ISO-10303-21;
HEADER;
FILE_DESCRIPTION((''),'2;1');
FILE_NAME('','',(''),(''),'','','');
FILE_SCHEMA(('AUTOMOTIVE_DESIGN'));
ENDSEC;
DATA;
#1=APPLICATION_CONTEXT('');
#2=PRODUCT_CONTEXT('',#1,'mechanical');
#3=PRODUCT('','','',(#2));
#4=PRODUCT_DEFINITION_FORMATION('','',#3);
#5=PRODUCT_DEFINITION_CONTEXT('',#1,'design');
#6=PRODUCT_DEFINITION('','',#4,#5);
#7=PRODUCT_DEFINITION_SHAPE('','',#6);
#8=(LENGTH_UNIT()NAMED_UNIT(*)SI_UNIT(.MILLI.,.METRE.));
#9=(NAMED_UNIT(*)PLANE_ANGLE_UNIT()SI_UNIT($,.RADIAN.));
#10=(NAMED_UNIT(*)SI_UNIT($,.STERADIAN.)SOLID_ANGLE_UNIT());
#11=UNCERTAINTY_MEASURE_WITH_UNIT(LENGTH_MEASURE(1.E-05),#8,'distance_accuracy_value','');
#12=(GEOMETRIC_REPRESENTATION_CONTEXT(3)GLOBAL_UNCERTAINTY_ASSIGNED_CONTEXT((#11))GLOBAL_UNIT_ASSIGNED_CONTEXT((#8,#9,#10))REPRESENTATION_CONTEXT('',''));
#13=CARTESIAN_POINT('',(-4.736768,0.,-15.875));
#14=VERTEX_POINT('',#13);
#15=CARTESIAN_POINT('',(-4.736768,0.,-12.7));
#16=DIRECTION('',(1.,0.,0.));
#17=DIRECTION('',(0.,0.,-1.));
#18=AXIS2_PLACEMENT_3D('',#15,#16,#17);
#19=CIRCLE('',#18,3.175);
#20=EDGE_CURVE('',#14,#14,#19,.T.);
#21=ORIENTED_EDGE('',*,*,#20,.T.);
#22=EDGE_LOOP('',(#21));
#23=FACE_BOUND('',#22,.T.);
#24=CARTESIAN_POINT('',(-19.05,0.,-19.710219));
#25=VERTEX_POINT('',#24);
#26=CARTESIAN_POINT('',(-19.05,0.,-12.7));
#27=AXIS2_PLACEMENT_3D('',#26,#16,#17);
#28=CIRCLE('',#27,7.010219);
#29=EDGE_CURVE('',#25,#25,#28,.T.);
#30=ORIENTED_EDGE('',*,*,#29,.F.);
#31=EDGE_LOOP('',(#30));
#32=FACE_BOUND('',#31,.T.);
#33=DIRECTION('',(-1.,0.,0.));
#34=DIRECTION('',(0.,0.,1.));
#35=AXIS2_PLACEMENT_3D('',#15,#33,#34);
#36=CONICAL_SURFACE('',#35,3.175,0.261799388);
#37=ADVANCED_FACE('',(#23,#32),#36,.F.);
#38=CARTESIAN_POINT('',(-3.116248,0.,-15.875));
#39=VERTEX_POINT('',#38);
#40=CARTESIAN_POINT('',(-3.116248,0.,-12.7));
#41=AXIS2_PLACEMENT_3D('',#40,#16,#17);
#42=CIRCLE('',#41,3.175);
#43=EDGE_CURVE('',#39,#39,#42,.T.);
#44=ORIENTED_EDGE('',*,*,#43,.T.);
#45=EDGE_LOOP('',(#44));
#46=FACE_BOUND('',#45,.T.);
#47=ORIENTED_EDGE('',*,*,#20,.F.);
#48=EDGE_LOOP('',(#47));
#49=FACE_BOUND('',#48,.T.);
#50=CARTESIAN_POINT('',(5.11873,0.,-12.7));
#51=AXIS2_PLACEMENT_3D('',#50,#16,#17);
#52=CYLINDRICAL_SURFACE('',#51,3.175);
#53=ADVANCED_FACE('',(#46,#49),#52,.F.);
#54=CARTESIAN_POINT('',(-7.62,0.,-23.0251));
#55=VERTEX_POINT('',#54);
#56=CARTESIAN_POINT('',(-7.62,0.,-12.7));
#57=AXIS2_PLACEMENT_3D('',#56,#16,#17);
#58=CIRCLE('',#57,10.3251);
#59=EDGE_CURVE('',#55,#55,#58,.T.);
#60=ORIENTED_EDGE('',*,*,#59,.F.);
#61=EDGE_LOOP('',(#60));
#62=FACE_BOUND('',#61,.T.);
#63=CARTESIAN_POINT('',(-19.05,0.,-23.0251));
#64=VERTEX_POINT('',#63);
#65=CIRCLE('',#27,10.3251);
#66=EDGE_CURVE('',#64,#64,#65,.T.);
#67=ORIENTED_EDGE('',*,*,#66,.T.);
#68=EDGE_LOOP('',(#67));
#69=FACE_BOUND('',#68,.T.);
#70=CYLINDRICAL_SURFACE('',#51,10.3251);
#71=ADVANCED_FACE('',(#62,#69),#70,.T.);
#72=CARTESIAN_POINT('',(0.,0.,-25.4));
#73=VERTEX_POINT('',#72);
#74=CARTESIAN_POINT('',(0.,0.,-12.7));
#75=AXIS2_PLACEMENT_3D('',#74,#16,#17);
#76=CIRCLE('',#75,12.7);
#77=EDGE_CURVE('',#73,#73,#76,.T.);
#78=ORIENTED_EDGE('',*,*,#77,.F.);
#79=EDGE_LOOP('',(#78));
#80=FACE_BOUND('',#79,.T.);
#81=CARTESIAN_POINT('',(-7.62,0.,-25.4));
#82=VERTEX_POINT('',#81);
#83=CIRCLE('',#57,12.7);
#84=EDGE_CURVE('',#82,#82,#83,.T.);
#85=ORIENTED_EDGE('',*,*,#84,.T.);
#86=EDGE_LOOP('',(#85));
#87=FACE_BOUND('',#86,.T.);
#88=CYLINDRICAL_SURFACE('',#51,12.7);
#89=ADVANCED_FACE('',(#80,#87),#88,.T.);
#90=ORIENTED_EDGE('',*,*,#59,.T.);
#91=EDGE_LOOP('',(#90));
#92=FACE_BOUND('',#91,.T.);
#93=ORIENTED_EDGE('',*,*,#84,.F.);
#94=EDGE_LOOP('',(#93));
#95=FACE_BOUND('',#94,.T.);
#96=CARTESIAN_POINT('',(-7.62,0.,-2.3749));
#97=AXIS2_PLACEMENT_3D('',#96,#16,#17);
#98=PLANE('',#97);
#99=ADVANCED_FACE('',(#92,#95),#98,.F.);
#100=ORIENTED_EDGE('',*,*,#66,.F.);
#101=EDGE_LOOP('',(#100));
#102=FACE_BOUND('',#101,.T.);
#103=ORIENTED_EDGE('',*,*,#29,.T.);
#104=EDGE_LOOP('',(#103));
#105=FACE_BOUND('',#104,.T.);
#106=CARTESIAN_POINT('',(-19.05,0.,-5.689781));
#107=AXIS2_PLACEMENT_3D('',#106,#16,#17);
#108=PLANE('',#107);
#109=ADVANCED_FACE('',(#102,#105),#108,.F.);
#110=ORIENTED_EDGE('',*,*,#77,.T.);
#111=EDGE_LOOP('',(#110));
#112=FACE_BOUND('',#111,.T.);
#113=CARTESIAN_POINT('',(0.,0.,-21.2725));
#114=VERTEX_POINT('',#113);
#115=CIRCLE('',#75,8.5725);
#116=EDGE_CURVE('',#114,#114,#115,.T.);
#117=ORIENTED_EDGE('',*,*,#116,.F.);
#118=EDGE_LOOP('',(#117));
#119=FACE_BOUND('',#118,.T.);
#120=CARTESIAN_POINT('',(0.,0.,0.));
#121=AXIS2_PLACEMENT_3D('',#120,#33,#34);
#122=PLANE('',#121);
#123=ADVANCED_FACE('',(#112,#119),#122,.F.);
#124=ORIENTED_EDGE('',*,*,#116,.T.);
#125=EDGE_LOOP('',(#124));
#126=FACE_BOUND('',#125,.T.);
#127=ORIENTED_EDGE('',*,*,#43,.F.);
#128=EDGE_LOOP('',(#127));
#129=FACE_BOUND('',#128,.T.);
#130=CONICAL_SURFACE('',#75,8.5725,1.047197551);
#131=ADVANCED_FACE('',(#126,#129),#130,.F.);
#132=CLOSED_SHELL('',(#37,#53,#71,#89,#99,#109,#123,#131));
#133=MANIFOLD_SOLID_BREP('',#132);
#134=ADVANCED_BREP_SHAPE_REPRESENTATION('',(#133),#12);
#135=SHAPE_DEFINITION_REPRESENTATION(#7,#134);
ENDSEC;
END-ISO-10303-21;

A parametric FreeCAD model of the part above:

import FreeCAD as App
import Part
import Sketcher
from FreeCAD import Vector
Q = App.Units.Quantity

doc = App.newDocument("Part")
body = doc.addObject("PartDesign::Body", "Body")

sketch1 = body.newObject("Sketcher::SketchObject", "Sketch")
sketch1.AttachmentSupport = (doc.getObject("XZ_Plane"), [""])
sketch1.MapMode = "FlatFace"
sketch1.addGeometry([
    Part.LineSegment(Vector(0, 0, 0), Vector(0, -4.1, 0)),
    Part.LineSegment(Vector(0, -4.1, 0), Vector(-3.1, -9.5, 0)),
    Part.LineSegment(Vector(-3.1, -9.5, 0), Vector(-4.7, -9.5, 0)),
    Part.LineSegment(Vector(-4.7, -9.5, 0), Vector(-19.1, -5.7, 0)),
    Part.LineSegment(Vector(-19.1, -5.7, 0), Vector(-19.1, -2.4, 0)),
    Part.LineSegment(Vector(-19.1, -2.4, 0), Vector(-7.6, -2.4, 0)),
    Part.LineSegment(Vector(-7.6, -2.4, 0), Vector(-7.6, 0, 0)),
    Part.LineSegment(Vector(-7.6, 0, 0), Vector(0, 0, 0)),
], False)
sketch1.addGeometry(Part.LineSegment(Vector(0, -12.7, 0), Vector(-19.1, -12.7, 0)), True)
sketch1.addConstraint([
    Sketcher.Constraint("Coincident", 0, 2, 1, 1),
    Sketcher.Constraint("Coincident", 1, 2, 2, 1),
    Sketcher.Constraint("Coincident", 2, 2, 3, 1),
    Sketcher.Constraint("Coincident", 3, 2, 4, 1),
    Sketcher.Constraint("Coincident", 4, 2, 5, 1),
    Sketcher.Constraint("Coincident", 5, 2, 6, 1),
    Sketcher.Constraint("Coincident", 6, 2, 7, 1),
    Sketcher.Constraint("Coincident", 7, 2, 0, 1),
    Sketcher.Constraint("Vertical", 0),
    Sketcher.Constraint("Horizontal", 2),
    Sketcher.Constraint("Vertical", 4),
    Sketcher.Constraint("Horizontal", 5),
    Sketcher.Constraint("Vertical", 6),
    Sketcher.Constraint("Horizontal", 7),
    Sketcher.Constraint("Horizontal", 8),
    Sketcher.Constraint("Coincident", 7, 2, -1, 1),
    Sketcher.Constraint("PointOnObject", 8, 1, -2),
    Sketcher.Constraint("Vertical", 4, 2, 8, 2),
    Sketcher.Constraint("DistanceX", 7, 1, 7, 2, Q("0.3 in")),
    Sketcher.Constraint("Angle", 1, Q("-120 deg")),
    Sketcher.Constraint("Angle", 3, Q("165 deg")),
    Sketcher.Constraint("DistanceX", 5, 1, 5, 2, Q("0.45 in")),
    Sketcher.Constraint("DistanceY", 8, 1, -1, 1, Q("0.5 in")),
    Sketcher.Constraint("DistanceX", 2, 2, 2, 1, Q("0.0638 in")),
    Sketcher.Constraint("DistanceY", 0, 2, 0, 1, Q("0.1625 in")),
    Sketcher.Constraint("DistanceY", 6, 1, 6, 2, Q("0.0935 in")),
    Sketcher.Constraint("DistanceY", 1, 2, -1, 1, Q("0.375 in")),
])
revolution = body.newObject("PartDesign::Revolution", "Revolution")
revolution.Profile = sketch1
revolution.ReferenceAxis = (sketch1, ["Axis0"])
revolution.Angle = 360

doc.recompute()
